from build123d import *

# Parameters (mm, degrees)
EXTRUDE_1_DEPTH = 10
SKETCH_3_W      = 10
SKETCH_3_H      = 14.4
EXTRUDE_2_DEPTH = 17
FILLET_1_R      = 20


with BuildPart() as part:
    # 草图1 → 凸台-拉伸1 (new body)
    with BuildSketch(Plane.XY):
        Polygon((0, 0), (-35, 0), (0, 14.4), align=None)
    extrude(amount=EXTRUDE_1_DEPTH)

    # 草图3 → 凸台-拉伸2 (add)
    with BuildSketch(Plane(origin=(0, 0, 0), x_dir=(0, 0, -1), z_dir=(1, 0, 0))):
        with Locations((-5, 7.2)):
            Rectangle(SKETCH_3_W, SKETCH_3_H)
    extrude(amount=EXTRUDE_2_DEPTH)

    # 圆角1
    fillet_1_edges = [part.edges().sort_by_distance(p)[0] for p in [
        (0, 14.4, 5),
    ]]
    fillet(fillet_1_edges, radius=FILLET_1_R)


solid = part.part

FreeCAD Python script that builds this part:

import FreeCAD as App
import Part
import Sketcher

V = App.Vector


def edges_at(feature, points):
    """Names of the edges that pass closest to the given points."""
    edges = feature.Shape.Edges
    near = lambda p: min(range(len(edges)), key=lambda i: edges[i].distToShape(Part.Vertex(*p))[0])
    return sorted({f"Edge{near(p) + 1}" for p in points})

doc = App.newDocument("Part")
body = doc.addObject("PartDesign::Body", "Body")

# Sketch on XY plane
sketch1 = body.newObject("Sketcher::SketchObject", "Sketch")
sketch1.AttachmentSupport = (doc.getObject("XY_Plane"), [""])
sketch1.MapMode = "FlatFace"
sketch1.addGeometry(Part.LineSegment(V(-35, 0, 0), V(0, 0, 0)), False)
sketch1.addGeometry(Part.LineSegment(V(0, 0, 0), V(0, 14, 0)), False)
sketch1.addGeometry(Part.LineSegment(V(0, 14, 0), V(-35, 0, 0)), False)
sketch1.addConstraint(Sketcher.Constraint("Coincident", 0, 2, 1, 1))
sketch1.addConstraint(Sketcher.Constraint("Coincident", 1, 2, 2, 1))
sketch1.addConstraint(Sketcher.Constraint("Coincident", 2, 2, 0, 1))
sketch1.addConstraint(Sketcher.Constraint("Horizontal", 0))
sketch1.addConstraint(Sketcher.Constraint("Vertical", 1))
sketch1.addConstraint(Sketcher.Constraint("Coincident", 0, 2, -1, 1))
sketch1.addConstraint(Sketcher.Constraint("DistanceX", 0, 1, 0, 2, 35.0))
sketch1.addConstraint(Sketcher.Constraint("DistanceY", 1, 1, 1, 2, 14.4))
pad1 = body.newObject("PartDesign::Pad", "Pad")
pad1.Profile = sketch1
pad1.Length = 10

# Sketch on YZ plane
sketch2 = body.newObject("Sketcher::SketchObject", "Sketch001")
sketch2.AttachmentSupport = (doc.getObject("YZ_Plane"), [""])
sketch2.MapMode = "FlatFace"
sketch2.addGeometry(Part.LineSegment(V(14, 10, 0), V(0, 10, 0)), False)
sketch2.addGeometry(Part.LineSegment(V(0, 10, 0), V(0, 0, 0)), False)
sketch2.addGeometry(Part.LineSegment(V(0, 0, 0), V(14, 0, 0)), False)
sketch2.addGeometry(Part.LineSegment(V(14, 0, 0), V(14, 10, 0)), False)
sketch2.addConstraint(Sketcher.Constraint("Coincident", 0, 2, 1, 1))
sketch2.addConstraint(Sketcher.Constraint("Coincident", 1, 2, 2, 1))
sketch2.addConstraint(Sketcher.Constraint("Coincident", 2, 2, 3, 1))
sketch2.addConstraint(Sketcher.Constraint("Coincident", 3, 2, 0, 1))
sketch2.addConstraint(Sketcher.Constraint("Horizontal", 0))
sketch2.addConstraint(Sketcher.Constraint("Vertical", 1))
sketch2.addConstraint(Sketcher.Constraint("Horizontal", 2))
sketch2.addConstraint(Sketcher.Constraint("Vertical", 3))
sketch2.addConstraint(Sketcher.Constraint("Coincident", 1, 2, -1, 1))
sketch2.addConstraint(Sketcher.Constraint("DistanceY", 1, 2, 1, 1, 10.0))
sketch2.addConstraint(Sketcher.Constraint("DistanceX", 0, 2, 0, 1, 14.4))
pad2 = body.newObject("PartDesign::Pad", "Pad001")
pad2.Profile = sketch2
pad2.Length = 17
doc.recompute()

fillet = body.newObject("PartDesign::Fillet", "Fillet")
fillet.Base = (pad2, edges_at(pad2, [(0, 14.4, 5)]))
fillet.Radius = 20

doc.recompute()
